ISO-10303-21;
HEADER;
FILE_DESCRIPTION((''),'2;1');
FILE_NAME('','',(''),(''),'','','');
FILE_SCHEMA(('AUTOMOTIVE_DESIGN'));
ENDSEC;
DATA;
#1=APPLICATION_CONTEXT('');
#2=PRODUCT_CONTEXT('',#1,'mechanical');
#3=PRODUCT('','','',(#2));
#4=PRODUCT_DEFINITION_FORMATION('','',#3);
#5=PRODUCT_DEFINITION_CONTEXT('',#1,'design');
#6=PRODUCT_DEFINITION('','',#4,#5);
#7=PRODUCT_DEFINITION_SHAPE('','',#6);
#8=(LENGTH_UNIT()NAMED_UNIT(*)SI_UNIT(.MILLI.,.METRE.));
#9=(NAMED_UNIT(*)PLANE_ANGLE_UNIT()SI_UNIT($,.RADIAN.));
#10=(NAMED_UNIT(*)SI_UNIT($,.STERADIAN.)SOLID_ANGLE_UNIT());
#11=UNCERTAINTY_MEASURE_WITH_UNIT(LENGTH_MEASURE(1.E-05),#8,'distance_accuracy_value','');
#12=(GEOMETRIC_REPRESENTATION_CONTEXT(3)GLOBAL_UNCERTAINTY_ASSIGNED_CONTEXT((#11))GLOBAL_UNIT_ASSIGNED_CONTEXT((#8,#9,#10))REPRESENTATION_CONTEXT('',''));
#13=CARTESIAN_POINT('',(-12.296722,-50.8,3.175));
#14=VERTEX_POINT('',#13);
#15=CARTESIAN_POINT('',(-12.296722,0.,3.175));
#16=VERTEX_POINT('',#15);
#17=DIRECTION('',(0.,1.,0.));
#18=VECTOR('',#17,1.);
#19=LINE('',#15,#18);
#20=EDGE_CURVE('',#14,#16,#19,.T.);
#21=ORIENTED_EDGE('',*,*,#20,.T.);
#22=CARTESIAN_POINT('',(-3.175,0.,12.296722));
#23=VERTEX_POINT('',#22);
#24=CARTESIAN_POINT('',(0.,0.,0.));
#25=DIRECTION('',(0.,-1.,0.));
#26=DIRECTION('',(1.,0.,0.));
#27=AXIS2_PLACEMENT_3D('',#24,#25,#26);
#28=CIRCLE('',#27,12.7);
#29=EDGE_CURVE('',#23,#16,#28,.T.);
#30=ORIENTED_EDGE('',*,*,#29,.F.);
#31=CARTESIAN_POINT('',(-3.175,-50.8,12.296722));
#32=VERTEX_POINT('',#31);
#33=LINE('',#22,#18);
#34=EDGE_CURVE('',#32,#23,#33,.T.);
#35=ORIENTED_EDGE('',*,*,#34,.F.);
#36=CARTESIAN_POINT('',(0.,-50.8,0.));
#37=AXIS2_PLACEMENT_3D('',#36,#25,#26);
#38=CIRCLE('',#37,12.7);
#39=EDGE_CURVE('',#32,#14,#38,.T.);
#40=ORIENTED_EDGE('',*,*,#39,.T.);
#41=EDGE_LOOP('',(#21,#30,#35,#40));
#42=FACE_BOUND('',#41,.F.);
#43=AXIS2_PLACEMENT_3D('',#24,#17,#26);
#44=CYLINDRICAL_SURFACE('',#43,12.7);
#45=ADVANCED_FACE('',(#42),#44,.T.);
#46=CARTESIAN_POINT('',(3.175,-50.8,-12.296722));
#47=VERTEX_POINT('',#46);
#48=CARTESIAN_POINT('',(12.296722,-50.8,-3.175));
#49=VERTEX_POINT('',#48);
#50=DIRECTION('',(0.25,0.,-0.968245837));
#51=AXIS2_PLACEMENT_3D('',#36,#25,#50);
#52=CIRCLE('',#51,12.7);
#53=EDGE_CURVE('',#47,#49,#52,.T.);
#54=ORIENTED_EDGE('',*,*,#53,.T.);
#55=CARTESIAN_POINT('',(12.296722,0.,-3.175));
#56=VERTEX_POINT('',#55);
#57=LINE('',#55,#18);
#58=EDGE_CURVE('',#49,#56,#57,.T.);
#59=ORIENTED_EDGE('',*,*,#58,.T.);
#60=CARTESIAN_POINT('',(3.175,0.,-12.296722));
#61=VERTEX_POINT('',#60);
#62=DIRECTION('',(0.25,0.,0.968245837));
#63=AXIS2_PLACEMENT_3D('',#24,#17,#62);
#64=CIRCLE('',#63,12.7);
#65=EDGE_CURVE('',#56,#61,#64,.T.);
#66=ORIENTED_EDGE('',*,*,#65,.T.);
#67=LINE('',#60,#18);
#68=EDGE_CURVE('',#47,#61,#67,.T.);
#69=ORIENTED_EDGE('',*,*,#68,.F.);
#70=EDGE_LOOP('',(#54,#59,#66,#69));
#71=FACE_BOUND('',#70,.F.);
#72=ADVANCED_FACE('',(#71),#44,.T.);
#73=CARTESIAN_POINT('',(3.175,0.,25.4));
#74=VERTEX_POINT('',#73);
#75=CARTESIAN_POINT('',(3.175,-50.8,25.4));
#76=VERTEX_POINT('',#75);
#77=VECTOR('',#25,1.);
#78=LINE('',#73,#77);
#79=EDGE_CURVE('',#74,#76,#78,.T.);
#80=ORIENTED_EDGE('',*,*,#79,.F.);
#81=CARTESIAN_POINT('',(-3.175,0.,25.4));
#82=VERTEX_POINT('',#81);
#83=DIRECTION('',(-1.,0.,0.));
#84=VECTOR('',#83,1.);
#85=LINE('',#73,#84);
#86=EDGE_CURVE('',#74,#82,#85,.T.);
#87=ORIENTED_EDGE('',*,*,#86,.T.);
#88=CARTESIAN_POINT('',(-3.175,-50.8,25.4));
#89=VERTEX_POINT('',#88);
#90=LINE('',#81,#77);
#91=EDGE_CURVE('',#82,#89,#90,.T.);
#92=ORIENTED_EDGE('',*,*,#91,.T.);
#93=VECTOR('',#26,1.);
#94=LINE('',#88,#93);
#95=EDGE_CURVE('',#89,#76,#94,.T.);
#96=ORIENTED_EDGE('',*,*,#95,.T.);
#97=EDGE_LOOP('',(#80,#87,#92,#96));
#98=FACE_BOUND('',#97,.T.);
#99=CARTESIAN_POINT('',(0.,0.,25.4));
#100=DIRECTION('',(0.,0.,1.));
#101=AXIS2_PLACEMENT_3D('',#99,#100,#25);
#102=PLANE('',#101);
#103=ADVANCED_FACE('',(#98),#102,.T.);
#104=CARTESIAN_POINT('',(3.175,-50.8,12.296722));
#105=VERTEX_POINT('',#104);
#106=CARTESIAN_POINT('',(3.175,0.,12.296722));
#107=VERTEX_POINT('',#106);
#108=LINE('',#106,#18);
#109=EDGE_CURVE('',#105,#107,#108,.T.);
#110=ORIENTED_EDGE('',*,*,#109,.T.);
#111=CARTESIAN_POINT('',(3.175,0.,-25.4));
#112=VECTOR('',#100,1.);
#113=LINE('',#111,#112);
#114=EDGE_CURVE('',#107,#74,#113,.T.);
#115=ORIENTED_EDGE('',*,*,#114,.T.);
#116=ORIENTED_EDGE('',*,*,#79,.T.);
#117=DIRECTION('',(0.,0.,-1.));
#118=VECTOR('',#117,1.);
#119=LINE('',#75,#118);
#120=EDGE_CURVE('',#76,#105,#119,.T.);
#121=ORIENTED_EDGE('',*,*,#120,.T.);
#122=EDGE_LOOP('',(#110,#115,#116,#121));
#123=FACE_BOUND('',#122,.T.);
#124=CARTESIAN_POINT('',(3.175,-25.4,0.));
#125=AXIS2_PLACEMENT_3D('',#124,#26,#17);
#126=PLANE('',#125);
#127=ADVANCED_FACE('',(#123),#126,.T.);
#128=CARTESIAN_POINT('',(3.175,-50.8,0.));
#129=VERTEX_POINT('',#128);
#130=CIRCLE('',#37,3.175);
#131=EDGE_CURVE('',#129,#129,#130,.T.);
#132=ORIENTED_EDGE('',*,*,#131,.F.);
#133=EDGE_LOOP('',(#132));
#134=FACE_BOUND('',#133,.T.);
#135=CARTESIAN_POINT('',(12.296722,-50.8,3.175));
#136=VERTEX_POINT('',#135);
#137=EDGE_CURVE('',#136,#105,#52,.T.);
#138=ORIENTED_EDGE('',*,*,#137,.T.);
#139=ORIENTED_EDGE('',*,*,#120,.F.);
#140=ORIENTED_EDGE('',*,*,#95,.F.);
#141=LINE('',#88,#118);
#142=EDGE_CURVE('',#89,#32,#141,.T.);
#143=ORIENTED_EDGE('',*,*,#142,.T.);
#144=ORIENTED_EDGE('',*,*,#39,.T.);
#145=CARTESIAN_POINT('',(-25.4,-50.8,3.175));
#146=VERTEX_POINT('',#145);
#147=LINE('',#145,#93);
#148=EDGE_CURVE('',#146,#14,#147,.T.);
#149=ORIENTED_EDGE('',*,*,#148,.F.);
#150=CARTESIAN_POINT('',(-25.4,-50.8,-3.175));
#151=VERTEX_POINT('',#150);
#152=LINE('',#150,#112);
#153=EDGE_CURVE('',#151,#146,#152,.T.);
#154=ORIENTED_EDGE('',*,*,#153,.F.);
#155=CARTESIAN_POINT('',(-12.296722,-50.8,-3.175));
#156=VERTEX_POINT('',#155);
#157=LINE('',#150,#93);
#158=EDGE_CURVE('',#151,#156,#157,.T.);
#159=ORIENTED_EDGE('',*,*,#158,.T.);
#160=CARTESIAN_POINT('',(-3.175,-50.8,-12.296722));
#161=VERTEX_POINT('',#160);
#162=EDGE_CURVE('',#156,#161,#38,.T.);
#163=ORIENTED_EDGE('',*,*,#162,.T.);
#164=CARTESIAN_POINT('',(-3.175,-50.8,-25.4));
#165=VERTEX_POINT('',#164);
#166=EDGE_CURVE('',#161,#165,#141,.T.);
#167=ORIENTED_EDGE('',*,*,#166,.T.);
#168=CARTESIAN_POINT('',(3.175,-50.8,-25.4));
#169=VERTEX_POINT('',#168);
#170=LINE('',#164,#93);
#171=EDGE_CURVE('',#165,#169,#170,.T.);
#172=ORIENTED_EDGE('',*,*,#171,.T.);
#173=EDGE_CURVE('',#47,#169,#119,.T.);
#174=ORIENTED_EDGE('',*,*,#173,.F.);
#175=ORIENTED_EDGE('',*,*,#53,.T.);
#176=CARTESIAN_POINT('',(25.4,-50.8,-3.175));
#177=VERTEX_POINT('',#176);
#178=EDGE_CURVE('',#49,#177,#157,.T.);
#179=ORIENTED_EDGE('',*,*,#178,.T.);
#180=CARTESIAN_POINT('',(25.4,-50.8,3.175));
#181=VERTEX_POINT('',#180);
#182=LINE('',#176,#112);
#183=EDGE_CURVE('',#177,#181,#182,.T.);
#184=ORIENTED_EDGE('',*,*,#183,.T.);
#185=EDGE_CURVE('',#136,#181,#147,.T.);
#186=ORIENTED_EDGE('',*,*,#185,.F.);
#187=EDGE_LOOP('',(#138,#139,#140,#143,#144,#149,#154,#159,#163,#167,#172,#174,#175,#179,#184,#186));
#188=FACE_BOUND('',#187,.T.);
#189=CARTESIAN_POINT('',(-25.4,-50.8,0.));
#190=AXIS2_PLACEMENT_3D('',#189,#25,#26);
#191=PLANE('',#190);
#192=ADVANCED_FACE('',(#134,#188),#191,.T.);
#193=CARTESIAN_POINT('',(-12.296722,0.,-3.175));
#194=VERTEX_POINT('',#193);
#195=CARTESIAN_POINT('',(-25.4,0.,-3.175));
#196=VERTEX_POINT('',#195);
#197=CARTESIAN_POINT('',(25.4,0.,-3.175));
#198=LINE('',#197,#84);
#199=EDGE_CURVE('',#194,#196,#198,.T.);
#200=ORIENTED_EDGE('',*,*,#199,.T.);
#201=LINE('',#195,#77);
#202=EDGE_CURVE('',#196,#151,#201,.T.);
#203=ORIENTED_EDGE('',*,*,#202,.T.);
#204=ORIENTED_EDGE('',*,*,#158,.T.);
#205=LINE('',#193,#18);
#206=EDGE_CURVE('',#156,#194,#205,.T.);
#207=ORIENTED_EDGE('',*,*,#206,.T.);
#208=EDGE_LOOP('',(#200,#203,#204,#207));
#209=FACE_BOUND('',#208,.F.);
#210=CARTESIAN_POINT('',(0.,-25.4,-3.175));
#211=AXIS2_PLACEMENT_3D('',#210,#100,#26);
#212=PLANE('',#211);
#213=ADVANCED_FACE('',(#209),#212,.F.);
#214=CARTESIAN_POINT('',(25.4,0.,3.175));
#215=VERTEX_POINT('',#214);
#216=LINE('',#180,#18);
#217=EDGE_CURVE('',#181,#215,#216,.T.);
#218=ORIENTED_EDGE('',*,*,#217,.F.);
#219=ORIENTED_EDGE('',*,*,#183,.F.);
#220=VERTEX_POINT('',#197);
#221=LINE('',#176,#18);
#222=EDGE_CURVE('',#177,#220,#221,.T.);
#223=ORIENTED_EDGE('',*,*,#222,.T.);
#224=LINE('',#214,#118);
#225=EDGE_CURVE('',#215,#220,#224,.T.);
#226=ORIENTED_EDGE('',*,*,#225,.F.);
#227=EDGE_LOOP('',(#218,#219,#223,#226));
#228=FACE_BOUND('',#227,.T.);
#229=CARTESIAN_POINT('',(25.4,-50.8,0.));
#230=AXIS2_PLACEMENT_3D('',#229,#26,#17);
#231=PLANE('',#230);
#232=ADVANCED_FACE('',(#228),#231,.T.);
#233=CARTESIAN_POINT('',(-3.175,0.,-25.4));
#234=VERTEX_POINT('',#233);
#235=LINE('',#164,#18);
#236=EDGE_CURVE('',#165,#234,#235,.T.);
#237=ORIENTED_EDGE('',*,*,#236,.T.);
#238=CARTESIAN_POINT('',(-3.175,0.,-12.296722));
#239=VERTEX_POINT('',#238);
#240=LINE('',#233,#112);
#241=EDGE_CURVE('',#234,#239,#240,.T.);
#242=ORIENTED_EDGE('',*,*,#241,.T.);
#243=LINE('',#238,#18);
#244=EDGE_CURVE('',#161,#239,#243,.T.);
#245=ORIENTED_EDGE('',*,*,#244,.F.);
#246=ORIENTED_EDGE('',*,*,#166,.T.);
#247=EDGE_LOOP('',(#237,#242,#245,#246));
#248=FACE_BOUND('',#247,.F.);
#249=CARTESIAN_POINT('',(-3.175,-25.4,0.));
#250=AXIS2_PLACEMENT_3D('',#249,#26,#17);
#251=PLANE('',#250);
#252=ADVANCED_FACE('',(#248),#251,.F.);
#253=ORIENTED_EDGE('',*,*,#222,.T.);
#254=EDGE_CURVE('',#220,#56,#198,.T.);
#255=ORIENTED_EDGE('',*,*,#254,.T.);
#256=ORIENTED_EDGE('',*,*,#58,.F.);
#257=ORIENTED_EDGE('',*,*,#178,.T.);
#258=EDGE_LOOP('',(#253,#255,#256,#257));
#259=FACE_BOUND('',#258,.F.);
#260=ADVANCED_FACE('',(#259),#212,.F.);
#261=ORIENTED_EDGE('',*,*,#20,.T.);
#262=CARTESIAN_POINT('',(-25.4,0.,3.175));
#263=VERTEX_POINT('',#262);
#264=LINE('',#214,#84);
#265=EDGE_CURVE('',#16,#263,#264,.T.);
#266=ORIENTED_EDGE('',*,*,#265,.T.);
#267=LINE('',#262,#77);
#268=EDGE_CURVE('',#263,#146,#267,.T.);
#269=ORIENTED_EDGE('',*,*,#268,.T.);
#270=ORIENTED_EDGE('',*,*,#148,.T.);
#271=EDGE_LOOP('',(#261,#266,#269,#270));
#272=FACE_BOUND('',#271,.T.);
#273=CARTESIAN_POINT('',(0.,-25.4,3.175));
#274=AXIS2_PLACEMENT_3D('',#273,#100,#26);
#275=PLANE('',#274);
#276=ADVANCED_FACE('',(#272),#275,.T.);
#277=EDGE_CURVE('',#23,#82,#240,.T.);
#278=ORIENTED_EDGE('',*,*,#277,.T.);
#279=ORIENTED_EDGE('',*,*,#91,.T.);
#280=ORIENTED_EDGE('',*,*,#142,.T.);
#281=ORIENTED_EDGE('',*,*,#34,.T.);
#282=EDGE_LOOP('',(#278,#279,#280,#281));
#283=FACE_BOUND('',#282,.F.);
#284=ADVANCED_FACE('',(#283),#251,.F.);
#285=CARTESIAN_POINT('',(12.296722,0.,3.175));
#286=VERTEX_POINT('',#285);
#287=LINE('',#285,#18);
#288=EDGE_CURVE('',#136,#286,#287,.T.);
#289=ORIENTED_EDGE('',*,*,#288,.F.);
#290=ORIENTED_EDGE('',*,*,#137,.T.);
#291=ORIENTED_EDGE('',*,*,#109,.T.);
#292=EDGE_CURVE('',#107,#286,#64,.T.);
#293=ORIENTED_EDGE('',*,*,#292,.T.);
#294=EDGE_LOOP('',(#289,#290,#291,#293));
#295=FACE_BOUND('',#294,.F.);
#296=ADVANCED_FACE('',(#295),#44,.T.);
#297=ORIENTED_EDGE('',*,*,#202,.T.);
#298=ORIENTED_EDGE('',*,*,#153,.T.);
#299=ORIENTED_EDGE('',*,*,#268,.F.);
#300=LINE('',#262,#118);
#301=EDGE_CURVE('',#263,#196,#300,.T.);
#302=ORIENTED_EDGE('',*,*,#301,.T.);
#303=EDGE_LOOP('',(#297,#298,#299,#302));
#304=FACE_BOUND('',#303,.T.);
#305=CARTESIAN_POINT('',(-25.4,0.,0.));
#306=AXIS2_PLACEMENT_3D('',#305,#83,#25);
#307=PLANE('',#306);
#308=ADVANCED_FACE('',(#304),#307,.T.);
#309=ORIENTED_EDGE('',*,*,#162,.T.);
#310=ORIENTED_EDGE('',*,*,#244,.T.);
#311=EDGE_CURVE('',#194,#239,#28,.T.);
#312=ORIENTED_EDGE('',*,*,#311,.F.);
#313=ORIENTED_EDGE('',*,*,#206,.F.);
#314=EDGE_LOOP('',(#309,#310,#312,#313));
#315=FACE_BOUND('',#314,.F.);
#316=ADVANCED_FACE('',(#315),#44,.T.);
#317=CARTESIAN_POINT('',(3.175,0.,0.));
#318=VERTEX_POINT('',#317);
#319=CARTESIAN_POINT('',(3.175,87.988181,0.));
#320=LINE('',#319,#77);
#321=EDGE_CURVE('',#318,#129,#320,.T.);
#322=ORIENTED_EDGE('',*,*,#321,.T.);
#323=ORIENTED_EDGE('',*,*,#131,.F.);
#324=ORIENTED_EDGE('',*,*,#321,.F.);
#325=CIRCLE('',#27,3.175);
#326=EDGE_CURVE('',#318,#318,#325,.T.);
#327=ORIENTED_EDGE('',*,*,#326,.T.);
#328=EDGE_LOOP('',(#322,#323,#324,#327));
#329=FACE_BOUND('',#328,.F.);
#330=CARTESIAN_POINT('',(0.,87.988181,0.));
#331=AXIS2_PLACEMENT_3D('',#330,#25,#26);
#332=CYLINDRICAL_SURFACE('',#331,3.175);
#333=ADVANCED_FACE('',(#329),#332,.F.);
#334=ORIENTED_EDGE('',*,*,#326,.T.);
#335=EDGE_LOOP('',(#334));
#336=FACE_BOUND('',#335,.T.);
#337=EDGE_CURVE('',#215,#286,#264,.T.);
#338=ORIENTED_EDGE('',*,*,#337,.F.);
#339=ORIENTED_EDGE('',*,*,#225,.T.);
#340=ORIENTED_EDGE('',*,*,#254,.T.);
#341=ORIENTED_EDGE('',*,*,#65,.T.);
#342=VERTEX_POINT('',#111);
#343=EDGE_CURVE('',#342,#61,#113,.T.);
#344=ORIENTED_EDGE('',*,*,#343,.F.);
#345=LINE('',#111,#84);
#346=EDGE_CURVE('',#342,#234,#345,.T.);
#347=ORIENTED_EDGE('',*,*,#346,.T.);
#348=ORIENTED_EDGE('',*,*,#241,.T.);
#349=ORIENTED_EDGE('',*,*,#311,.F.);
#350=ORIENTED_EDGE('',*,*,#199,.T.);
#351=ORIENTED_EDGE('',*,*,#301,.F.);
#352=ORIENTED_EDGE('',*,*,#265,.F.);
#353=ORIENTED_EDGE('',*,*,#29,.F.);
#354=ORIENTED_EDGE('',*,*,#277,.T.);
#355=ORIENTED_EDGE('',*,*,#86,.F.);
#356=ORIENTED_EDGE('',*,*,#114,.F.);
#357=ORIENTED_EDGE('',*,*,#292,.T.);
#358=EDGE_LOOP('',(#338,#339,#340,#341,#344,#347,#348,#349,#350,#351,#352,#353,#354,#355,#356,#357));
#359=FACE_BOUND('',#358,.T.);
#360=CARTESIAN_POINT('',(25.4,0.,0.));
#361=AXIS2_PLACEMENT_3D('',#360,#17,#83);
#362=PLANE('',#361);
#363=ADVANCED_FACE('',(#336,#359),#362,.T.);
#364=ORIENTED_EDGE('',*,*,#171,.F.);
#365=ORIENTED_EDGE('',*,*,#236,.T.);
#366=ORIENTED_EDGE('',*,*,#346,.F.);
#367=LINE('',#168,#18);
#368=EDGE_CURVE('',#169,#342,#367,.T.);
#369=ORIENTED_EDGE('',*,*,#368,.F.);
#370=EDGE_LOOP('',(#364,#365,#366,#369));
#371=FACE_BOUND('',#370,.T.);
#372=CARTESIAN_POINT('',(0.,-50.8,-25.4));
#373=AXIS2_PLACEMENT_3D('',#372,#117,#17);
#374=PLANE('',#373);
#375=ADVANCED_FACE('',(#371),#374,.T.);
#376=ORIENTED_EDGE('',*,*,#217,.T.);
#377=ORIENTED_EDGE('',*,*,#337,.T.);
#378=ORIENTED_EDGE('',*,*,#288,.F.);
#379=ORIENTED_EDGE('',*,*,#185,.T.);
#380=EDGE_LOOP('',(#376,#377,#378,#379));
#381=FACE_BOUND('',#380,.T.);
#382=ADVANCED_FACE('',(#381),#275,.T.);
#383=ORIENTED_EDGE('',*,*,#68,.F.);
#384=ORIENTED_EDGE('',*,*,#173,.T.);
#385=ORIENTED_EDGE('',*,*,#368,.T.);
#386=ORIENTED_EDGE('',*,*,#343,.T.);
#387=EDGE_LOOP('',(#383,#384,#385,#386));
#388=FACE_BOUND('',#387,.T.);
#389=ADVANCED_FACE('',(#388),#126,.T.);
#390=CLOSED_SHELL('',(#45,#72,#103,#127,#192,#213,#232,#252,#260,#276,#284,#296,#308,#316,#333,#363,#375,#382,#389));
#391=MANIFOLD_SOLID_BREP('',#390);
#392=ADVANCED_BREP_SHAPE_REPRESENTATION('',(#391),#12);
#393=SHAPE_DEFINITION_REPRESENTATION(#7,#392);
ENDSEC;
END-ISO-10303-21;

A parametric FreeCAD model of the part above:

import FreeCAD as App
import Part
import Sketcher
from FreeCAD import Vector
Q = App.Units.Quantity


def add_polygon(sketch, points):
    """Adds a closed chain of lines whose ends are joined by coincident constraints."""
    first, n = sketch.GeometryCount, len(points)
    for a, b in zip(points, points[1:] + points[:1]):
        sketch.addGeometry(Part.LineSegment(App.Vector(*a, 0), App.Vector(*b, 0)), False)
    for i in range(n):
        sketch.addConstraint(Sketcher.Constraint("Coincident", first + i, 2, first + (i + 1) % n, 1))

doc = App.newDocument("Part")
body = doc.addObject("PartDesign::Body", "Body")

# Sketch on XZ plane
sketch1 = body.newObject("Sketcher::SketchObject", "Sketch")
sketch1.AttachmentSupport = (doc.getObject("XZ_Plane"), [""])
sketch1.MapMode = "FlatFace"
sketch1.addGeometry(Part.Circle(Vector(0, 0, 0), Vector(0, 0, 1), 13), False)
sketch1.addConstraint(Sketcher.Constraint("Coincident", 0, 3, -1, 1))
sketch1.addConstraint(Sketcher.Constraint("Diameter", 0, Q("1 in")))
pad1 = body.newObject("PartDesign::Pad", "Pad")
pad1.Profile = sketch1
pad1.Length = Q("2 in")

# Sketch on YZ plane
sketch2 = body.newObject("Sketcher::SketchObject", "Sketch001")
sketch2.AttachmentSupport = (doc.getObject("YZ_Plane"), [""])
sketch2.MapMode = "FlatFace"
add_polygon(sketch2, [(0, 25), (-51, 25), (-51, -25), (0, -25)])  # lines 0-3
sketch2.addConstraint(Sketcher.Constraint("Horizontal", 0))
sketch2.addConstraint(Sketcher.Constraint("Vertical", 1))
sketch2.addConstraint(Sketcher.Constraint("Horizontal", 2))
sketch2.addConstraint(Sketcher.Constraint("Vertical", 3))
sketch2.addConstraint(Sketcher.Constraint("Symmetric", 2, 2, 3, 2, -1, 1))
sketch2.addConstraint(Sketcher.Constraint("Equal", 2, 1))
sketch2.addConstraint(Sketcher.Constraint("DistanceX", 0, 2, 0, 1, Q("2 in")))
pad2 = body.newObject("PartDesign::Pad", "Pad001")
pad2.Profile = sketch2
pad2.Length = Q("0.25 in")
pad2.Midplane = True

# Sketch on XY plane
sketch3 = body.newObject("Sketcher::SketchObject", "Sketch002")
sketch3.AttachmentSupport = (doc.getObject("XY_Plane"), [""])
sketch3.MapMode = "FlatFace"
add_polygon(sketch3, [(-25, 0), (-25, -51), (25, -51), (25, 0)])  # lines 0-3
sketch3.addConstraint(Sketcher.Constraint("Vertical", 0))
sketch3.addConstraint(Sketcher.Constraint("Horizontal", 1))
sketch3.addConstraint(Sketcher.Constraint("Vertical", 2))
sketch3.addConstraint(Sketcher.Constraint("Horizontal", 3))
sketch3.addConstraint(Sketcher.Constraint("Symmetric", 2, 2, 3, 2, -1, 1))
sketch3.addConstraint(Sketcher.Constraint("Equal", 3, 0))
sketch3.addConstraint(Sketcher.Constraint("DistanceX", 1, 1, 1, 2, Q("2 in")))
pad3 = body.newObject("PartDesign::Pad", "Pad002")
pad3.Profile = sketch3
pad3.Length = Q("0.25 in")
pad3.Midplane = True

# Sketch on XZ plane
sketch4 = body.newObject("Sketcher::SketchObject", "Sketch003")
sketch4.AttachmentSupport = (doc.getObject("XZ_Plane"), [""])
sketch4.MapMode = "FlatFace"
sketch4.addGeometry(Part.Circle(Vector(0, 0, 0), Vector(0, 0, 1), 3.2), False)
sketch4.addConstraint(Sketcher.Constraint("Coincident", 0, 3, -1, 1))
sketch4.addConstraint(Sketcher.Constraint("Diameter", 0, Q("0.25 in")))
doc.recompute()
hole = body.newObject("PartDesign::Hole", "Hole")
hole.Profile = sketch4
hole.ThreadType = "None"
hole.Diameter = Q("0.25 in")
hole.DepthType = "ThroughAll"
hole.Reversed = True

doc.recompute()
